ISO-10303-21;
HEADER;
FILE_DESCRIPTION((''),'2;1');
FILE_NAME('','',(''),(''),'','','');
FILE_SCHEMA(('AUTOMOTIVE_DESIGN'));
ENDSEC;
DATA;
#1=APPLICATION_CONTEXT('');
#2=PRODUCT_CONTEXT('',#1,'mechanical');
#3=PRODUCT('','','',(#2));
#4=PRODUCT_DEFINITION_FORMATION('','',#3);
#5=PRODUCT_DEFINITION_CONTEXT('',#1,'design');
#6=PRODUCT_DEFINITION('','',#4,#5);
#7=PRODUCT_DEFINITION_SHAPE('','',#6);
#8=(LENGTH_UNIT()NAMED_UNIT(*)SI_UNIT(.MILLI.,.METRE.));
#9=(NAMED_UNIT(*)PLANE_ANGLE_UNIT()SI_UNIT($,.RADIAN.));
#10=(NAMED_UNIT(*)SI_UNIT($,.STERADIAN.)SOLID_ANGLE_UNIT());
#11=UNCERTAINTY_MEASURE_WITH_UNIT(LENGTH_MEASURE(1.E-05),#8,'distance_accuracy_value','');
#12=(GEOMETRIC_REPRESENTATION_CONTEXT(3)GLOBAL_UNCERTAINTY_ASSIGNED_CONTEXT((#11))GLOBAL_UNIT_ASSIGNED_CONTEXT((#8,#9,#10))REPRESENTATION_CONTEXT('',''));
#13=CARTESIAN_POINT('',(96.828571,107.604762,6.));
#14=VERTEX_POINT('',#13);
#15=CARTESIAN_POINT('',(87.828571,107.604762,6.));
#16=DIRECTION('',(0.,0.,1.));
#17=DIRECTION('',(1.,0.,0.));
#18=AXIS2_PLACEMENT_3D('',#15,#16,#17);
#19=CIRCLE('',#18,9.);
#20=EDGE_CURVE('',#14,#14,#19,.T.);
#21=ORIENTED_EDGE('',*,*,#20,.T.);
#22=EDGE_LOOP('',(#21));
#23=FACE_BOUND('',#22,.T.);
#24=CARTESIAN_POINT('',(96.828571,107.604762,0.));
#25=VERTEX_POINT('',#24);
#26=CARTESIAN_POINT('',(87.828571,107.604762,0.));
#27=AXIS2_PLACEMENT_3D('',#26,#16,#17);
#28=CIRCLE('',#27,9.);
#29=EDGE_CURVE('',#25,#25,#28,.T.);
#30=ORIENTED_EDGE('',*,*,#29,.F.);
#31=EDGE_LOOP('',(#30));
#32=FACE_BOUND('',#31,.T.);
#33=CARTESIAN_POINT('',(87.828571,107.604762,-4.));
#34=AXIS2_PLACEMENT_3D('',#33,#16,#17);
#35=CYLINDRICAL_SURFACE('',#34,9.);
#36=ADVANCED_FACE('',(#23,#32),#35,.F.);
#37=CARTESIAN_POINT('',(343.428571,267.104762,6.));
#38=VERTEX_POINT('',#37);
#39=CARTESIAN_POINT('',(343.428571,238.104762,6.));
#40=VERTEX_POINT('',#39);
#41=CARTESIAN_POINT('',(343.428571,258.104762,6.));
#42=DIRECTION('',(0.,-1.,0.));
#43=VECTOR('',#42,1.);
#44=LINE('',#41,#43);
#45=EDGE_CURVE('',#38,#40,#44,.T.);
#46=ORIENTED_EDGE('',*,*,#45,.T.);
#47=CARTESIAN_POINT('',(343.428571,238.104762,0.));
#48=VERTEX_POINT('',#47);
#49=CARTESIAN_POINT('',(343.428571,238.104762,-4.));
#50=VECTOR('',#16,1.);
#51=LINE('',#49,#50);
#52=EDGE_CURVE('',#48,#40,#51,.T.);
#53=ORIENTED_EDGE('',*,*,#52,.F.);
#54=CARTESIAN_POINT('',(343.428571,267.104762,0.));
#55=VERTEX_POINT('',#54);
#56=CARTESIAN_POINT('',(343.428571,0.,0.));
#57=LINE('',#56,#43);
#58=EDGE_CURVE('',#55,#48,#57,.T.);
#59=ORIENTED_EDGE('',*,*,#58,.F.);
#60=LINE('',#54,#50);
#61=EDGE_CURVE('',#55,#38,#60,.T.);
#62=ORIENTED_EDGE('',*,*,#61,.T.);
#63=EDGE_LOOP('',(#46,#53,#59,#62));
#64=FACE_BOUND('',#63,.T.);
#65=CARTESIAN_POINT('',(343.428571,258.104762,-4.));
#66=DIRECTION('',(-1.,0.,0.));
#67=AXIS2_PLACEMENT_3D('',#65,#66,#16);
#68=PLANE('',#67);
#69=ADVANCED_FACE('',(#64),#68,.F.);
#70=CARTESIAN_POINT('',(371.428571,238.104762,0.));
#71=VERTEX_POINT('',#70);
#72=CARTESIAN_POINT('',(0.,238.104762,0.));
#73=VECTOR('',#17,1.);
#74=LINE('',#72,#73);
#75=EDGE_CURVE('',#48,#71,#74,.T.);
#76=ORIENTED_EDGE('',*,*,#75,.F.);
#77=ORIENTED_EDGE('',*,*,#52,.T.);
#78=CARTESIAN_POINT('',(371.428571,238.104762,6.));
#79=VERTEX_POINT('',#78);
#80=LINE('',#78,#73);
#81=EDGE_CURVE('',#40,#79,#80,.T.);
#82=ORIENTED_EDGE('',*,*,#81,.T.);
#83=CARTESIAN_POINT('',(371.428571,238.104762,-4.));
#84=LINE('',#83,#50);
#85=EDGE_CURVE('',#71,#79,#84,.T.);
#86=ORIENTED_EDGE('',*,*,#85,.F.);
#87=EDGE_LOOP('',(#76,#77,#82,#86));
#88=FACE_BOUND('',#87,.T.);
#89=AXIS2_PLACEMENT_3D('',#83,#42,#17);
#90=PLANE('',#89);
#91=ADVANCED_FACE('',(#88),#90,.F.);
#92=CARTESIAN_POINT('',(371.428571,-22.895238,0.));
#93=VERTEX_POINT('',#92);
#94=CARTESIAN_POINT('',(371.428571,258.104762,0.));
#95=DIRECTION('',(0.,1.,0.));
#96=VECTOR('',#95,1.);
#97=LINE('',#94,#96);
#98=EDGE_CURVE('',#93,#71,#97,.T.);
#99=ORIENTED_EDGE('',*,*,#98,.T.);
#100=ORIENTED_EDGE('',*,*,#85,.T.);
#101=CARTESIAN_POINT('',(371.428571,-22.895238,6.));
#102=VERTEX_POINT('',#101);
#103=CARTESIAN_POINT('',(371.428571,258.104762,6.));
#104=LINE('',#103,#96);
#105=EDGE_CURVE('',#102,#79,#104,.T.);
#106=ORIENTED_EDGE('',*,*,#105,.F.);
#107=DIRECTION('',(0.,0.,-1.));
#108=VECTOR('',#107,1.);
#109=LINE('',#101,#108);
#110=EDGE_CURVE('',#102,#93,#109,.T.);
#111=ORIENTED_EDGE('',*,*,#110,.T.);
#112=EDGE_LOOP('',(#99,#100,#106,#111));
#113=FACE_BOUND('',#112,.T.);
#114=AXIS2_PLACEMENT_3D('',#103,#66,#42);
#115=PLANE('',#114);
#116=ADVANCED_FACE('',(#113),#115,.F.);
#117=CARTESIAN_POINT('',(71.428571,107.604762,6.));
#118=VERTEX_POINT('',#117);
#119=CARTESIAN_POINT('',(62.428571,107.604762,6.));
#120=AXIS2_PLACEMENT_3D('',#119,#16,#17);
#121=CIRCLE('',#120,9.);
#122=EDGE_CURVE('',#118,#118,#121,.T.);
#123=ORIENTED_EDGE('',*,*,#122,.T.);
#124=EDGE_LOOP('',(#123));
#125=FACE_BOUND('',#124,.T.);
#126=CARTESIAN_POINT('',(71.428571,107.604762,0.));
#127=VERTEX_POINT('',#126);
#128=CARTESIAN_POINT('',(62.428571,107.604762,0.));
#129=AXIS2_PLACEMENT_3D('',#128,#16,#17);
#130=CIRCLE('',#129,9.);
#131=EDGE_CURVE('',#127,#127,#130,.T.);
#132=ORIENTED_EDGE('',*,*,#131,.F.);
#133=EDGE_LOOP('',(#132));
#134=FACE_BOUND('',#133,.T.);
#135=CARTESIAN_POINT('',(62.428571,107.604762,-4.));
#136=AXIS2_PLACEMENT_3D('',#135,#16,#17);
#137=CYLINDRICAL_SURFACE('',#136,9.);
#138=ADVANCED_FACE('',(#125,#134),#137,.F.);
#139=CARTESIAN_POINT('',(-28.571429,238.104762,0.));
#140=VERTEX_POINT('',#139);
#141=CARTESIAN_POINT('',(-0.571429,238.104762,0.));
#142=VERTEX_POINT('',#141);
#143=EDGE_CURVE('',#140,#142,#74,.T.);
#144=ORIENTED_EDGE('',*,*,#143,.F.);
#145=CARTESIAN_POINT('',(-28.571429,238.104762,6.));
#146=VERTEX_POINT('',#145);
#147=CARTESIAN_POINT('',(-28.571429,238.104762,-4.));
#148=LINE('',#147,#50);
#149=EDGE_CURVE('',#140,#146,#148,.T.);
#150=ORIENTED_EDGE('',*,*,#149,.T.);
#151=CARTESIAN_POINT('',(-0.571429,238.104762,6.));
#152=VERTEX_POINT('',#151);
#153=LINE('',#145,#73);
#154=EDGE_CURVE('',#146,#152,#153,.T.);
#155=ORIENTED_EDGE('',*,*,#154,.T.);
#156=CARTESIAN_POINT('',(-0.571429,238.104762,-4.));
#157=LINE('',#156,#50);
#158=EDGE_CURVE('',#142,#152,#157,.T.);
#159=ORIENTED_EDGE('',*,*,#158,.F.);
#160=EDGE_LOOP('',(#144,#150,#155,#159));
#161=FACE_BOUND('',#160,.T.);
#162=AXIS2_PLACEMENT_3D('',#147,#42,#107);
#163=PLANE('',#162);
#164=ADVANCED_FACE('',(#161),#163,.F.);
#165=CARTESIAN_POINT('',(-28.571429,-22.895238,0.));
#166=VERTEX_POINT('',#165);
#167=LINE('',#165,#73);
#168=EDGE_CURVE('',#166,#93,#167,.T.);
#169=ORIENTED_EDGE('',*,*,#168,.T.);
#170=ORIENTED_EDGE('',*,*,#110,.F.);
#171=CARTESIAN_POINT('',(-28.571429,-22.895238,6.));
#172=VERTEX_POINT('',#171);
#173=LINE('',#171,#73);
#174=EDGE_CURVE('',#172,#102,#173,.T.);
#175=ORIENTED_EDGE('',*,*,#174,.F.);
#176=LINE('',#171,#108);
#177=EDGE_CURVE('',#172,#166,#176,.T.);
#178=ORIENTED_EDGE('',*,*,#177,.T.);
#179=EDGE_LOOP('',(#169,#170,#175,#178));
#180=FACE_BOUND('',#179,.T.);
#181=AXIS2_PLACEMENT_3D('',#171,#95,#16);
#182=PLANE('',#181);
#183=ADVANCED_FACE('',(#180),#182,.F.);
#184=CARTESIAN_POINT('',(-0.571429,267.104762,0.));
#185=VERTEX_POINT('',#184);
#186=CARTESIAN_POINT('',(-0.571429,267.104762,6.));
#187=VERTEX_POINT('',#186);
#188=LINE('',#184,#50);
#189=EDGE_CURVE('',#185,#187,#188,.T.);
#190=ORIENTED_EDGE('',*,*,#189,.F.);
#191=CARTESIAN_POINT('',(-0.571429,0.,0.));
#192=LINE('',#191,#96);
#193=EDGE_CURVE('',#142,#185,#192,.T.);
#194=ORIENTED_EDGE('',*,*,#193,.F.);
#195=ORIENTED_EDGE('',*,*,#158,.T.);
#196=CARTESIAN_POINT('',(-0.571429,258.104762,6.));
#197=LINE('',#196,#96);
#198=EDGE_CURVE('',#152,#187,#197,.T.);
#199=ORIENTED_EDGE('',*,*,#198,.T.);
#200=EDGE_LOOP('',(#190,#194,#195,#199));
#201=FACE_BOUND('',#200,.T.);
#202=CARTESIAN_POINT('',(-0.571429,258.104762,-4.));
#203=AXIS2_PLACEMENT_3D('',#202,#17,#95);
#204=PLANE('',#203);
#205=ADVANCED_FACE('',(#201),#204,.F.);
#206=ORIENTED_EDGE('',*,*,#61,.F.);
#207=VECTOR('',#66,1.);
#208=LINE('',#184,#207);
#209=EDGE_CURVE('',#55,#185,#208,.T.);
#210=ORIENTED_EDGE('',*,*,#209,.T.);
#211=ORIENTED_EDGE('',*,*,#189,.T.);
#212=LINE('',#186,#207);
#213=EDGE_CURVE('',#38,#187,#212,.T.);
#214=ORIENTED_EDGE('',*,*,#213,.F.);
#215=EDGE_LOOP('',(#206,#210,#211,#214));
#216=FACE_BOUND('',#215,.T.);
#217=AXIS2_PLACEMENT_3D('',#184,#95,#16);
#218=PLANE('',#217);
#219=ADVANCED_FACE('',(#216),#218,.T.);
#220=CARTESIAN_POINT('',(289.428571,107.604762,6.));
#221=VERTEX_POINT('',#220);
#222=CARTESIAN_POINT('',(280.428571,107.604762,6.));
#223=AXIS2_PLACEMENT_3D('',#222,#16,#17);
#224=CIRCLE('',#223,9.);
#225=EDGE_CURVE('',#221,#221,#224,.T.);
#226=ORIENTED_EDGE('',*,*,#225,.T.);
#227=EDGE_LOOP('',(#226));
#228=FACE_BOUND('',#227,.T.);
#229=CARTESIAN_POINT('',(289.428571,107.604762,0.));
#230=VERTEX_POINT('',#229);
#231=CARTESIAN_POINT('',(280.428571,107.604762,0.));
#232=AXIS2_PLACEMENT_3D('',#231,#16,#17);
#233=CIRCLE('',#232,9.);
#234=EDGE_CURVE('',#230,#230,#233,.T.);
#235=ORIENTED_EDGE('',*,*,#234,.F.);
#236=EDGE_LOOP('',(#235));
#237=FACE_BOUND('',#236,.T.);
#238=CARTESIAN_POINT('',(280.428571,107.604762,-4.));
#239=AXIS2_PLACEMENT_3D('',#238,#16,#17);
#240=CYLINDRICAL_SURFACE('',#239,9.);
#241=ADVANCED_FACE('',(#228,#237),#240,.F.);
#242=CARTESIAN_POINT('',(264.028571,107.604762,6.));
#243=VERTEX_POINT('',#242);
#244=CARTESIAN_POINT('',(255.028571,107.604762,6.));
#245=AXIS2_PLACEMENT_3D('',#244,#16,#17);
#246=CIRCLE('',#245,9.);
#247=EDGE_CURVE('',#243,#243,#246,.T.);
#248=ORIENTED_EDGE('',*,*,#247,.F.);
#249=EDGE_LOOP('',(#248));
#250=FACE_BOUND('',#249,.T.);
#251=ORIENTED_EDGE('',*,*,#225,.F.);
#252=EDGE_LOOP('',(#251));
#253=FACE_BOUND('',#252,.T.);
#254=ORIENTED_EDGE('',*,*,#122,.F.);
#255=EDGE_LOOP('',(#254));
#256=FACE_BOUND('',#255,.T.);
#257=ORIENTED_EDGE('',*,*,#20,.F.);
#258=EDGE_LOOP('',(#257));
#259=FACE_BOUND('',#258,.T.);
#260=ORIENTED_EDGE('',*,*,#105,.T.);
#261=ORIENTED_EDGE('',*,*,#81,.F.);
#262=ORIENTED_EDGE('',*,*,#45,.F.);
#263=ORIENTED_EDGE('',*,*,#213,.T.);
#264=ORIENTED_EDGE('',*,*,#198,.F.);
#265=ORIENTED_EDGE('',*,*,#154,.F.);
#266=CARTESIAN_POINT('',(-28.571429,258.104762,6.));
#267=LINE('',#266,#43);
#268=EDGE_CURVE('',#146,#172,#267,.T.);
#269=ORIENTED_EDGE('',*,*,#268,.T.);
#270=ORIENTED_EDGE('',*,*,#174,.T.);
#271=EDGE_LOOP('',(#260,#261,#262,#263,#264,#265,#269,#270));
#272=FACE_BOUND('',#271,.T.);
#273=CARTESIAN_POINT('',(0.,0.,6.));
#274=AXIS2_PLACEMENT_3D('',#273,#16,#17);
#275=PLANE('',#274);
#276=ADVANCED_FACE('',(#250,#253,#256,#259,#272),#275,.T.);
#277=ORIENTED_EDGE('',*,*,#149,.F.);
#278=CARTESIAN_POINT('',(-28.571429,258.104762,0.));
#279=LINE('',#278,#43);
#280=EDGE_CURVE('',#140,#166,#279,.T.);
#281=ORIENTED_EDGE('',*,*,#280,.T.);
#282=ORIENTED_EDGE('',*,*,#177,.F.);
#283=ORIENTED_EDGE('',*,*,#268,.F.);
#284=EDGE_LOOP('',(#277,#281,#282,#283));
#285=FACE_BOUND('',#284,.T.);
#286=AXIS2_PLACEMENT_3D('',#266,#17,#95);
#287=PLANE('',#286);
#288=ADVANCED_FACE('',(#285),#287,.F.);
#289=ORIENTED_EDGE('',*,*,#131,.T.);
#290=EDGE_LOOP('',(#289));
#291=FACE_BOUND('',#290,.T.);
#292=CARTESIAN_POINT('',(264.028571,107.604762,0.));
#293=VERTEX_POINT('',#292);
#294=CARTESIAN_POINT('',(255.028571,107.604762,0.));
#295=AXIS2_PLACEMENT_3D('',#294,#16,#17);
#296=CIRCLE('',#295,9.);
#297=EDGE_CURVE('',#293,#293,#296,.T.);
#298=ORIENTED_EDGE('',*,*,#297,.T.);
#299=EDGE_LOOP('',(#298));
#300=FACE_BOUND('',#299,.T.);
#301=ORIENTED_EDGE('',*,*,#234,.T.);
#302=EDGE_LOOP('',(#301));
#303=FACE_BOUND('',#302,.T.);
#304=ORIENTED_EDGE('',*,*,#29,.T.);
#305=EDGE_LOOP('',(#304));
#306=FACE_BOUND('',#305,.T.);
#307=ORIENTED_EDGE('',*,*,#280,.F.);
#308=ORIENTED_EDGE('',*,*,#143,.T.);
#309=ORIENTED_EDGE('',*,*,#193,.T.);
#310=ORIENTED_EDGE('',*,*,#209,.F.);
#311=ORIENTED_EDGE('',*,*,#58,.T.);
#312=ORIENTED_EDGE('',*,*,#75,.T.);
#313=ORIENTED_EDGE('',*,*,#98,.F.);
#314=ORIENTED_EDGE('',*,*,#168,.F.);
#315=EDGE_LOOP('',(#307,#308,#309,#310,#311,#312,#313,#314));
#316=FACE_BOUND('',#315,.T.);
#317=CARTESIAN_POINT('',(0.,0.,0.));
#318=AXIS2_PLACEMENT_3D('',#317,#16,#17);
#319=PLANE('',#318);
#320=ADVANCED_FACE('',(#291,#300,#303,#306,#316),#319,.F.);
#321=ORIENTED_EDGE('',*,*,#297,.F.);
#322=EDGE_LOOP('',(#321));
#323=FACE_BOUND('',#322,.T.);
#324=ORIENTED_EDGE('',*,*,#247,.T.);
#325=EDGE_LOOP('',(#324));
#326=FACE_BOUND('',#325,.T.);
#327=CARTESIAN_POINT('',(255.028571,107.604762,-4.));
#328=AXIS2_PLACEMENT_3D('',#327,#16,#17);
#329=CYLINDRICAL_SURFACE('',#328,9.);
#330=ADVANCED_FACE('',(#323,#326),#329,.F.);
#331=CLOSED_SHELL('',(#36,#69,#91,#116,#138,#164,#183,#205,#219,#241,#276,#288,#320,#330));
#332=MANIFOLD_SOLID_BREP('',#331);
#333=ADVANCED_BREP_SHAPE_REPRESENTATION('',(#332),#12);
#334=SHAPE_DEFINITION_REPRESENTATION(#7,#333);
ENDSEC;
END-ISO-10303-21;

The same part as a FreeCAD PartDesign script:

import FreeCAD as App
import Part
import Sketcher

V = App.Vector
Q = App.Units.Quantity

doc = App.newDocument("Part")
params = doc.addObject("Spreadsheet::Sheet", "Params")
for row, (alias, value) in enumerate([
    ("sketch1_width", "400 mm"),
    ("sketch1_height", "281 mm"),
    ("pad1_length", "6 mm"),
    ("sketch2_width", "28 mm"),
    ("sketch2_height", "20 mm"),
    ("pocket1_length", "10 mm"),
    ("sketch3_width", "344 mm"),
    ("sketch3_height", "9 mm"),
    ("pad2_length", "6 mm"),
    ("sketch4_diameter", "18 mm"),
    ("pocket2_length", "10 mm"),
], start=1):
    params.set(f"A{row}", alias)
    params.set(f"B{row}", "=" + value)
    params.setAlias(f"B{row}", alias)

body = doc.addObject("PartDesign::Body", "Body")

# Sketch on XY plane
sketch1 = body.newObject("Sketcher::SketchObject", "Sketch")
sketch1.AttachmentSupport = (doc.getObject("XY_Plane"), [""])
sketch1.MapMode = "FlatFace"
sketch1.addGeometry(Part.LineSegment(V(-28.571429, 258.104762, 0), V(-28.571429, -22.895238, 0)), False)
sketch1.addGeometry(Part.LineSegment(V(-28.571429, -22.895238, 0), V(371.428571, -22.895238, 0)), False)
sketch1.addGeometry(Part.LineSegment(V(371.428571, -22.895238, 0), V(371.428571, 258.104762, 0)), False)
sketch1.addGeometry(Part.LineSegment(V(371.428571, 258.104762, 0), V(-28.571429, 258.104762, 0)), False)
sketch1.addConstraint(Sketcher.Constraint("Coincident", 0, 2, 1, 1))
sketch1.addConstraint(Sketcher.Constraint("Coincident", 1, 2, 2, 1))
sketch1.addConstraint(Sketcher.Constraint("Coincident", 2, 2, 3, 1))
sketch1.addConstraint(Sketcher.Constraint("Coincident", 3, 2, 0, 1))
sketch1.addConstraint(Sketcher.Constraint("Vertical", 0))
sketch1.addConstraint(Sketcher.Constraint("Horizontal", 1))
sketch1.addConstraint(Sketcher.Constraint("Vertical", 2))
sketch1.addConstraint(Sketcher.Constraint("Horizontal", 3))
sketch1.addConstraint(Sketcher.Constraint("DistanceX", 1, 1, 1, 2, Q("400 mm")))
sketch1.addConstraint(Sketcher.Constraint("DistanceY", 0, 2, 0, 1, Q("281 mm")))
sketch1.addConstraint(Sketcher.Constraint("DistanceX", 0, 2, -1, 1, Q("28.571429 mm")))
sketch1.addConstraint(Sketcher.Constraint("DistanceY", 0, 2, -1, 1, Q("22.895238 mm")))
sketch1.setExpression("Constraints[8]", "Params.sketch1_width")
sketch1.setExpression("Constraints[9]", "Params.sketch1_height")
pad1 = body.newObject("PartDesign::Pad", "Pad")
pad1.Profile = sketch1
pad1.setExpression("Length", "Params.pad1_length")

# Sketch on XY plane
sketch2 = body.newObject("Sketcher::SketchObject", "Sketch001")
sketch2.AttachmentSupport = (doc.getObject("XY_Plane"), [""])
sketch2.MapMode = "FlatFace"
sketch2.AttachmentOffset = App.Placement(V(0, 0, 6), App.Rotation())
sketch2.addGeometry(Part.LineSegment(V(-28.571429, 258.104762, 0), V(-28.571429, 238.104762, 0)), False)
sketch2.addGeometry(Part.LineSegment(V(-28.571429, 238.104762, 0), V(-0.571429, 238.104762, 0)), False)
sketch2.addGeometry(Part.LineSegment(V(-0.571429, 238.104762, 0), V(-0.571429, 258.104762, 0)), False)
sketch2.addGeometry(Part.LineSegment(V(-0.571429, 258.104762, 0), V(-28.571429, 258.104762, 0)), False)
sketch2.addGeometry(Part.LineSegment(V(343.428571, 258.104762, 0), V(343.428571, 238.104762, 0)), False)
sketch2.addGeometry(Part.LineSegment(V(343.428571, 238.104762, 0), V(371.428571, 238.104762, 0)), False)
sketch2.addGeometry(Part.LineSegment(V(371.428571, 238.104762, 0), V(371.428571, 258.104762, 0)), False)
sketch2.addGeometry(Part.LineSegment(V(371.428571, 258.104762, 0), V(343.428571, 258.104762, 0)), False)
sketch2.addConstraint(Sketcher.Constraint("Coincident", 0, 2, 1, 1))
sketch2.addConstraint(Sketcher.Constraint("Coincident", 1, 2, 2, 1))
sketch2.addConstraint(Sketcher.Constraint("Coincident", 2, 2, 3, 1))
sketch2.addConstraint(Sketcher.Constraint("Coincident", 3, 2, 0, 1))
sketch2.addConstraint(Sketcher.Constraint("Coincident", 4, 2, 5, 1))
sketch2.addConstraint(Sketcher.Constraint("Coincident", 5, 2, 6, 1))
sketch2.addConstraint(Sketcher.Constraint("Coincident", 6, 2, 7, 1))
sketch2.addConstraint(Sketcher.Constraint("Coincident", 7, 2, 4, 1))
sketch2.addConstraint(Sketcher.Constraint("Vertical", 0))
sketch2.addConstraint(Sketcher.Constraint("Horizontal", 1))
sketch2.addConstraint(Sketcher.Constraint("Vertical", 2))
sketch2.addConstraint(Sketcher.Constraint("Horizontal", 3))
sketch2.addConstraint(Sketcher.Constraint("Vertical", 4))
sketch2.addConstraint(Sketcher.Constraint("Horizontal", 5))
sketch2.addConstraint(Sketcher.Constraint("Vertical", 6))
sketch2.addConstraint(Sketcher.Constraint("Horizontal", 7))
sketch2.addConstraint(Sketcher.Constraint("Horizontal", 1, 2, 4, 2))
sketch2.addConstraint(Sketcher.Constraint("Horizontal", 3, 2, 6, 2))
sketch2.addConstraint(Sketcher.Constraint("Equal", 3, 5))
sketch2.addConstraint(Sketcher.Constraint("DistanceX", 1, 1, 1, 2, Q("28 mm")))
sketch2.addConstraint(Sketcher.Constraint("DistanceY", 0, 2, 0, 1, Q("20 mm")))
sketch2.addConstraint(Sketcher.Constraint("DistanceX", 1, 2, 4, 2, Q("344 mm")))
sketch2.addConstraint(Sketcher.Constraint("DistanceX", 0, 2, -1, 1, Q("28.571429 mm")))
sketch2.addConstraint(Sketcher.Constraint("DistanceY", -1, 1, 0, 2, Q("238.104762 mm")))
sketch2.setExpression("Constraints[19]", "Params.sketch2_width")
sketch2.setExpression("Constraints[20]", "Params.sketch2_height")
pocket1 = body.newObject("PartDesign::Pocket", "Pocket")
pocket1.Profile = sketch2
pocket1.setExpression("Length", "Params.pocket1_length")

# Sketch on XY plane
sketch3 = body.newObject("Sketcher::SketchObject", "Sketch002")
sketch3.AttachmentSupport = (doc.getObject("XY_Plane"), [""])
sketch3.MapMode = "FlatFace"
sketch3.AttachmentOffset = App.Placement(V(0, 0, 6), App.Rotation())
sketch3.addGeometry(Part.LineSegment(V(-0.571429, 267.104762, 0), V(-0.571429, 258.104762, 0)), False)
sketch3.addGeometry(Part.LineSegment(V(-0.571429, 258.104762, 0), V(343.428571, 258.104762, 0)), False)
sketch3.addGeometry(Part.LineSegment(V(343.428571, 258.104762, 0), V(343.428571, 267.104762, 0)), False)
sketch3.addGeometry(Part.LineSegment(V(343.428571, 267.104762, 0), V(-0.571429, 267.104762, 0)), False)
sketch3.addConstraint(Sketcher.Constraint("Coincident", 0, 2, 1, 1))
sketch3.addConstraint(Sketcher.Constraint("Coincident", 1, 2, 2, 1))
sketch3.addConstraint(Sketcher.Constraint("Coincident", 2, 2, 3, 1))
sketch3.addConstraint(Sketcher.Constraint("Coincident", 3, 2, 0, 1))
sketch3.addConstraint(Sketcher.Constraint("Vertical", 0))
sketch3.addConstraint(Sketcher.Constraint("Horizontal", 1))
sketch3.addConstraint(Sketcher.Constraint("Vertical", 2))
sketch3.addConstraint(Sketcher.Constraint("Horizontal", 3))
sketch3.addConstraint(Sketcher.Constraint("DistanceX", 1, 1, 1, 2, Q("344 mm")))
sketch3.addConstraint(Sketcher.Constraint("DistanceY", 0, 2, 0, 1, Q("9 mm")))
sketch3.addConstraint(Sketcher.Constraint("DistanceX", 0, 2, -1, 1, Q("0.571429 mm")))
sketch3.addConstraint(Sketcher.Constraint("DistanceY", -1, 1, 0, 2, Q("258.104762 mm")))
sketch3.setExpression("Constraints[8]", "Params.sketch3_width")
sketch3.setExpression("Constraints[9]", "Params.sketch3_height")
pad2 = body.newObject("PartDesign::Pad", "Pad001")
pad2.Profile = sketch3
pad2.setExpression("Length", "Params.pad2_length")
pad2.Reversed = True

# Sketch on XY plane
sketch4 = body.newObject("Sketcher::SketchObject", "Sketch003")
sketch4.AttachmentSupport = (doc.getObject("XY_Plane"), [""])
sketch4.MapMode = "FlatFace"
sketch4.AttachmentOffset = App.Placement(V(0, 0, 6), App.Rotation())
sketch4.addGeometry(Part.Circle(V(62.428571, 107.604762, 0), V(0, 0, 1), 9), False)
sketch4.addGeometry(Part.Circle(V(87.828571, 107.604762, 0), V(0, 0, 1), 9), False)
sketch4.addGeometry(Part.Circle(V(255.028571, 107.604762, 0), V(0, 0, 1), 9), False)
sketch4.addGeometry(Part.Circle(V(280.428571, 107.604762, 0), V(0, 0, 1), 9), False)
sketch4.addConstraint(Sketcher.Constraint("Equal", 0, 1))
sketch4.addConstraint(Sketcher.Constraint("Equal", 1, 2))
sketch4.addConstraint(Sketcher.Constraint("Equal", 2, 3))
sketch4.addConstraint(Sketcher.Constraint("Horizontal", 0, 3, 1, 3))
sketch4.addConstraint(Sketcher.Constraint("Horizontal", 1, 3, 2, 3))
sketch4.addConstraint(Sketcher.Constraint("Horizontal", 2, 3, 3, 3))
sketch4.addConstraint(Sketcher.Constraint("Diameter", 0, Q("18 mm")))
sketch4.addConstraint(Sketcher.Constraint("DistanceX", 0, 3, 3, 3, Q("218 mm")))
sketch4.addConstraint(Sketcher.Constraint("DistanceX", 0, 3, 1, 3, Q("25.4 mm")))
sketch4.addConstraint(Sketcher.Constraint("DistanceX", 1, 3, 2, 3, Q("167.2 mm")))
sketch4.addConstraint(Sketcher.Constraint("DistanceX", -1, 1, 0, 3, Q("62.428571 mm")))
sketch4.addConstraint(Sketcher.Constraint("DistanceY", -1, 1, 0, 3, Q("107.604762 mm")))
sketch4.setExpression("Constraints[6]", "Params.sketch4_diameter")
pocket2 = body.newObject("PartDesign::Pocket", "Pocket001")
pocket2.Profile = sketch4
pocket2.setExpression("Length", "Params.pocket2_length")

doc.recompute()
